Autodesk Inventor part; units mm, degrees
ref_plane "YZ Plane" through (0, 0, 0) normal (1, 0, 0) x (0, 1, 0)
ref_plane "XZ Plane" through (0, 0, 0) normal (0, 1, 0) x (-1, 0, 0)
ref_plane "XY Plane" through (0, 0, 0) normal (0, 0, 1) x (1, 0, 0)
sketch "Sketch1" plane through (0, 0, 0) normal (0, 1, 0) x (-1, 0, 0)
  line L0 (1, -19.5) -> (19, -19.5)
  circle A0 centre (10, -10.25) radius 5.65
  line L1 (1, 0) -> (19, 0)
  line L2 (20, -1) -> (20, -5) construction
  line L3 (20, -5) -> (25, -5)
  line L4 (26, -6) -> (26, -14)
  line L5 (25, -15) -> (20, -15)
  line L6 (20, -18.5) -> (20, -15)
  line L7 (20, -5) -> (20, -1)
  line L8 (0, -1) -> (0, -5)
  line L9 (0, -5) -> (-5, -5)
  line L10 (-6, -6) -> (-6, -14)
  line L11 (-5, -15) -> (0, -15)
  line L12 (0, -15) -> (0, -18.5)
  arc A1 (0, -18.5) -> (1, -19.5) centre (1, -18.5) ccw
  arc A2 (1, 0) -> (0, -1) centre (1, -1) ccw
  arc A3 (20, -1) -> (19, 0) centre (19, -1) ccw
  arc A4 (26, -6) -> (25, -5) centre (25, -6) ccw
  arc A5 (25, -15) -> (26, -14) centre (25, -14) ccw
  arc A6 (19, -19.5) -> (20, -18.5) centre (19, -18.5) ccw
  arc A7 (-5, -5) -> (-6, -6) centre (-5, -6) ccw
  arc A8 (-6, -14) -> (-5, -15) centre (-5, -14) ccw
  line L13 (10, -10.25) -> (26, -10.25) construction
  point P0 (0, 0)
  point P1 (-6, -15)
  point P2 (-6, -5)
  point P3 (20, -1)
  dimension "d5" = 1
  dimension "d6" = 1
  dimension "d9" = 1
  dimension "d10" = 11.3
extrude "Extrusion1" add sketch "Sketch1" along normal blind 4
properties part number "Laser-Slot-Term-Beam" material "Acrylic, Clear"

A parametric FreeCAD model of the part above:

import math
import FreeCAD as App
import Part
import Sketcher
Q = App.Units.Quantity

doc = App.newDocument("Part")
body = doc.addObject("PartDesign::Body", "Body")

sketch1 = body.newObject("Sketcher::SketchObject", "Sketch")
sketch1.AttachmentSupport = (doc.getObject("XZ_Plane"), [""])
sketch1.MapMode = "FlatFace"
sketch1.addGeometry([
    Part.ArcOfCircle(Part.Circle(App.Vector(-1, -18.5, 0), App.Vector(0, 0, 1), 1), math.radians(-90), math.radians(0)),
    Part.LineSegment(App.Vector(-1, -19.5, 0), App.Vector(-19, -19.5, 0)),
    Part.ArcOfCircle(Part.Circle(App.Vector(-19, -18.5, 0), App.Vector(0, 0, 1), 1), math.radians(180), math.radians(270)),
    Part.LineSegment(App.Vector(-20, -18.5, 0), App.Vector(-20, -15, 0)),
    Part.LineSegment(App.Vector(-20, -15, 0), App.Vector(-25, -15, 0)),
    Part.ArcOfCircle(Part.Circle(App.Vector(-25, -14, 0), App.Vector(0, 0, 1), 1), math.radians(180), math.radians(270)),
    Part.LineSegment(App.Vector(-26, -14, 0), App.Vector(-26, -6, 0)),
    Part.ArcOfCircle(Part.Circle(App.Vector(-25, -6, 0), App.Vector(0, 0, 1), 1), math.radians(90), math.radians(180)),
    Part.LineSegment(App.Vector(-25, -5, 0), App.Vector(-20, -5, 0)),
    Part.LineSegment(App.Vector(-20, -5, 0), App.Vector(-20, -1, 0)),
    Part.ArcOfCircle(Part.Circle(App.Vector(-19, -1, 0), App.Vector(0, 0, 1), 1), math.radians(90), math.radians(180)),
    Part.LineSegment(App.Vector(-19, 0, 0), App.Vector(-1, 0, 0)),
    Part.ArcOfCircle(Part.Circle(App.Vector(-1, -1, 0), App.Vector(0, 0, 1), 1), math.radians(0), math.radians(90)),
    Part.LineSegment(App.Vector(0, -1, 0), App.Vector(0, -5, 0)),
    Part.LineSegment(App.Vector(0, -5, 0), App.Vector(5, -5, 0)),
    Part.ArcOfCircle(Part.Circle(App.Vector(5, -6, 0), App.Vector(0, 0, 1), 1), math.radians(0), math.radians(90)),
    Part.LineSegment(App.Vector(6, -6, 0), App.Vector(6, -14, 0)),
    Part.ArcOfCircle(Part.Circle(App.Vector(5, -14, 0), App.Vector(0, 0, 1), 1), math.radians(-90), math.radians(0)),
    Part.LineSegment(App.Vector(5, -15, 0), App.Vector(0, -15, 0)),
    Part.LineSegment(App.Vector(0, -15, 0), App.Vector(0, -18.5, 0)),
    Part.Circle(App.Vector(-10, -10.2, 0), App.Vector(0, 0, 1), 5.7),
], False)
sketch1.addConstraint([
    Sketcher.Constraint("Tangent", 0, 1, 1, 1),
    Sketcher.Constraint("Tangent", 1, 2, 2, 2),
    Sketcher.Constraint("Tangent", 2, 1, 3, 1),
    Sketcher.Constraint("Coincident", 3, 2, 4, 1),
    Sketcher.Constraint("Tangent", 4, 2, 5, 2),
    Sketcher.Constraint("Tangent", 5, 1, 6, 1),
    Sketcher.Constraint("Tangent", 6, 2, 7, 2),
    Sketcher.Constraint("Tangent", 7, 1, 8, 1),
    Sketcher.Constraint("Coincident", 8, 2, 9, 1),
    Sketcher.Constraint("Tangent", 9, 2, 10, 2),
    Sketcher.Constraint("Tangent", 10, 1, 11, 1),
    Sketcher.Constraint("Tangent", 11, 2, 12, 2),
    Sketcher.Constraint("Tangent", 12, 1, 13, 1),
    Sketcher.Constraint("Coincident", 13, 2, 14, 1),
    Sketcher.Constraint("Tangent", 14, 2, 15, 2),
    Sketcher.Constraint("Tangent", 15, 1, 16, 1),
    Sketcher.Constraint("Tangent", 16, 2, 17, 2),
    Sketcher.Constraint("Tangent", 17, 1, 18, 1),
    Sketcher.Constraint("Coincident", 18, 2, 19, 1),
    Sketcher.Constraint("Tangent", 19, 2, 0, 2),
    Sketcher.Constraint("Horizontal", 1),
    Sketcher.Constraint("Vertical", 3),
    Sketcher.Constraint("Horizontal", 4),
    Sketcher.Constraint("Vertical", 6),
    Sketcher.Constraint("Horizontal", 8),
    Sketcher.Constraint("Vertical", 9),
    Sketcher.Constraint("Horizontal", 11),
    Sketcher.Constraint("Vertical", 13),
    Sketcher.Constraint("Horizontal", 14),
    Sketcher.Constraint("Vertical", 16),
    Sketcher.Constraint("Horizontal", 18),
    Sketcher.Constraint("Vertical", 19),
    Sketcher.Constraint("Equal", 0, 2),
    Sketcher.Constraint("Equal", 2, 5),
    Sketcher.Constraint("Equal", 5, 7),
    Sketcher.Constraint("Equal", 7, 10),
    Sketcher.Constraint("Equal", 10, 12),
    Sketcher.Constraint("Equal", 12, 15),
    Sketcher.Constraint("Equal", 15, 17),
    Sketcher.Constraint("PointOnObject", 10, 1, -1),
    Sketcher.Constraint("PointOnObject", 12, 1, -2),
    Sketcher.Constraint("PointOnObject", 18, 2, -2),
    Sketcher.Constraint("Horizontal", 7, 3, 15, 3),
    Sketcher.Constraint("Horizontal", 5, 3, 17, 3),
    Sketcher.Constraint("Vertical", 2, 3, 10, 3),
    Sketcher.Constraint("Equal", 8, 14),
    Sketcher.Constraint("Radius", 0, Q("1 mm")),
    Sketcher.Constraint("Diameter", 20, Q("11.3 mm")),
    Sketcher.Constraint("DistanceX", 1, 2, 1, 1, Q("18 mm")),
    Sketcher.Constraint("DistanceX", 4, 2, 4, 1, Q("5 mm")),
    Sketcher.Constraint("DistanceY", 6, 1, 6, 2, Q("8 mm")),
    Sketcher.Constraint("DistanceY", 9, 1, 9, 2, Q("4 mm")),
    Sketcher.Constraint("DistanceY", 3, 1, 3, 2, Q("3.5 mm")),
    Sketcher.Constraint("DistanceX", 20, 3, -1, 1, Q("10 mm")),
    Sketcher.Constraint("DistanceY", 20, 3, -1, 1, Q("10.25 mm")),
])
pad1 = body.newObject("PartDesign::Pad", "Pad")
pad1.Profile = sketch1
pad1.Length = 4
pad1.Reversed = True

doc.recompute()
